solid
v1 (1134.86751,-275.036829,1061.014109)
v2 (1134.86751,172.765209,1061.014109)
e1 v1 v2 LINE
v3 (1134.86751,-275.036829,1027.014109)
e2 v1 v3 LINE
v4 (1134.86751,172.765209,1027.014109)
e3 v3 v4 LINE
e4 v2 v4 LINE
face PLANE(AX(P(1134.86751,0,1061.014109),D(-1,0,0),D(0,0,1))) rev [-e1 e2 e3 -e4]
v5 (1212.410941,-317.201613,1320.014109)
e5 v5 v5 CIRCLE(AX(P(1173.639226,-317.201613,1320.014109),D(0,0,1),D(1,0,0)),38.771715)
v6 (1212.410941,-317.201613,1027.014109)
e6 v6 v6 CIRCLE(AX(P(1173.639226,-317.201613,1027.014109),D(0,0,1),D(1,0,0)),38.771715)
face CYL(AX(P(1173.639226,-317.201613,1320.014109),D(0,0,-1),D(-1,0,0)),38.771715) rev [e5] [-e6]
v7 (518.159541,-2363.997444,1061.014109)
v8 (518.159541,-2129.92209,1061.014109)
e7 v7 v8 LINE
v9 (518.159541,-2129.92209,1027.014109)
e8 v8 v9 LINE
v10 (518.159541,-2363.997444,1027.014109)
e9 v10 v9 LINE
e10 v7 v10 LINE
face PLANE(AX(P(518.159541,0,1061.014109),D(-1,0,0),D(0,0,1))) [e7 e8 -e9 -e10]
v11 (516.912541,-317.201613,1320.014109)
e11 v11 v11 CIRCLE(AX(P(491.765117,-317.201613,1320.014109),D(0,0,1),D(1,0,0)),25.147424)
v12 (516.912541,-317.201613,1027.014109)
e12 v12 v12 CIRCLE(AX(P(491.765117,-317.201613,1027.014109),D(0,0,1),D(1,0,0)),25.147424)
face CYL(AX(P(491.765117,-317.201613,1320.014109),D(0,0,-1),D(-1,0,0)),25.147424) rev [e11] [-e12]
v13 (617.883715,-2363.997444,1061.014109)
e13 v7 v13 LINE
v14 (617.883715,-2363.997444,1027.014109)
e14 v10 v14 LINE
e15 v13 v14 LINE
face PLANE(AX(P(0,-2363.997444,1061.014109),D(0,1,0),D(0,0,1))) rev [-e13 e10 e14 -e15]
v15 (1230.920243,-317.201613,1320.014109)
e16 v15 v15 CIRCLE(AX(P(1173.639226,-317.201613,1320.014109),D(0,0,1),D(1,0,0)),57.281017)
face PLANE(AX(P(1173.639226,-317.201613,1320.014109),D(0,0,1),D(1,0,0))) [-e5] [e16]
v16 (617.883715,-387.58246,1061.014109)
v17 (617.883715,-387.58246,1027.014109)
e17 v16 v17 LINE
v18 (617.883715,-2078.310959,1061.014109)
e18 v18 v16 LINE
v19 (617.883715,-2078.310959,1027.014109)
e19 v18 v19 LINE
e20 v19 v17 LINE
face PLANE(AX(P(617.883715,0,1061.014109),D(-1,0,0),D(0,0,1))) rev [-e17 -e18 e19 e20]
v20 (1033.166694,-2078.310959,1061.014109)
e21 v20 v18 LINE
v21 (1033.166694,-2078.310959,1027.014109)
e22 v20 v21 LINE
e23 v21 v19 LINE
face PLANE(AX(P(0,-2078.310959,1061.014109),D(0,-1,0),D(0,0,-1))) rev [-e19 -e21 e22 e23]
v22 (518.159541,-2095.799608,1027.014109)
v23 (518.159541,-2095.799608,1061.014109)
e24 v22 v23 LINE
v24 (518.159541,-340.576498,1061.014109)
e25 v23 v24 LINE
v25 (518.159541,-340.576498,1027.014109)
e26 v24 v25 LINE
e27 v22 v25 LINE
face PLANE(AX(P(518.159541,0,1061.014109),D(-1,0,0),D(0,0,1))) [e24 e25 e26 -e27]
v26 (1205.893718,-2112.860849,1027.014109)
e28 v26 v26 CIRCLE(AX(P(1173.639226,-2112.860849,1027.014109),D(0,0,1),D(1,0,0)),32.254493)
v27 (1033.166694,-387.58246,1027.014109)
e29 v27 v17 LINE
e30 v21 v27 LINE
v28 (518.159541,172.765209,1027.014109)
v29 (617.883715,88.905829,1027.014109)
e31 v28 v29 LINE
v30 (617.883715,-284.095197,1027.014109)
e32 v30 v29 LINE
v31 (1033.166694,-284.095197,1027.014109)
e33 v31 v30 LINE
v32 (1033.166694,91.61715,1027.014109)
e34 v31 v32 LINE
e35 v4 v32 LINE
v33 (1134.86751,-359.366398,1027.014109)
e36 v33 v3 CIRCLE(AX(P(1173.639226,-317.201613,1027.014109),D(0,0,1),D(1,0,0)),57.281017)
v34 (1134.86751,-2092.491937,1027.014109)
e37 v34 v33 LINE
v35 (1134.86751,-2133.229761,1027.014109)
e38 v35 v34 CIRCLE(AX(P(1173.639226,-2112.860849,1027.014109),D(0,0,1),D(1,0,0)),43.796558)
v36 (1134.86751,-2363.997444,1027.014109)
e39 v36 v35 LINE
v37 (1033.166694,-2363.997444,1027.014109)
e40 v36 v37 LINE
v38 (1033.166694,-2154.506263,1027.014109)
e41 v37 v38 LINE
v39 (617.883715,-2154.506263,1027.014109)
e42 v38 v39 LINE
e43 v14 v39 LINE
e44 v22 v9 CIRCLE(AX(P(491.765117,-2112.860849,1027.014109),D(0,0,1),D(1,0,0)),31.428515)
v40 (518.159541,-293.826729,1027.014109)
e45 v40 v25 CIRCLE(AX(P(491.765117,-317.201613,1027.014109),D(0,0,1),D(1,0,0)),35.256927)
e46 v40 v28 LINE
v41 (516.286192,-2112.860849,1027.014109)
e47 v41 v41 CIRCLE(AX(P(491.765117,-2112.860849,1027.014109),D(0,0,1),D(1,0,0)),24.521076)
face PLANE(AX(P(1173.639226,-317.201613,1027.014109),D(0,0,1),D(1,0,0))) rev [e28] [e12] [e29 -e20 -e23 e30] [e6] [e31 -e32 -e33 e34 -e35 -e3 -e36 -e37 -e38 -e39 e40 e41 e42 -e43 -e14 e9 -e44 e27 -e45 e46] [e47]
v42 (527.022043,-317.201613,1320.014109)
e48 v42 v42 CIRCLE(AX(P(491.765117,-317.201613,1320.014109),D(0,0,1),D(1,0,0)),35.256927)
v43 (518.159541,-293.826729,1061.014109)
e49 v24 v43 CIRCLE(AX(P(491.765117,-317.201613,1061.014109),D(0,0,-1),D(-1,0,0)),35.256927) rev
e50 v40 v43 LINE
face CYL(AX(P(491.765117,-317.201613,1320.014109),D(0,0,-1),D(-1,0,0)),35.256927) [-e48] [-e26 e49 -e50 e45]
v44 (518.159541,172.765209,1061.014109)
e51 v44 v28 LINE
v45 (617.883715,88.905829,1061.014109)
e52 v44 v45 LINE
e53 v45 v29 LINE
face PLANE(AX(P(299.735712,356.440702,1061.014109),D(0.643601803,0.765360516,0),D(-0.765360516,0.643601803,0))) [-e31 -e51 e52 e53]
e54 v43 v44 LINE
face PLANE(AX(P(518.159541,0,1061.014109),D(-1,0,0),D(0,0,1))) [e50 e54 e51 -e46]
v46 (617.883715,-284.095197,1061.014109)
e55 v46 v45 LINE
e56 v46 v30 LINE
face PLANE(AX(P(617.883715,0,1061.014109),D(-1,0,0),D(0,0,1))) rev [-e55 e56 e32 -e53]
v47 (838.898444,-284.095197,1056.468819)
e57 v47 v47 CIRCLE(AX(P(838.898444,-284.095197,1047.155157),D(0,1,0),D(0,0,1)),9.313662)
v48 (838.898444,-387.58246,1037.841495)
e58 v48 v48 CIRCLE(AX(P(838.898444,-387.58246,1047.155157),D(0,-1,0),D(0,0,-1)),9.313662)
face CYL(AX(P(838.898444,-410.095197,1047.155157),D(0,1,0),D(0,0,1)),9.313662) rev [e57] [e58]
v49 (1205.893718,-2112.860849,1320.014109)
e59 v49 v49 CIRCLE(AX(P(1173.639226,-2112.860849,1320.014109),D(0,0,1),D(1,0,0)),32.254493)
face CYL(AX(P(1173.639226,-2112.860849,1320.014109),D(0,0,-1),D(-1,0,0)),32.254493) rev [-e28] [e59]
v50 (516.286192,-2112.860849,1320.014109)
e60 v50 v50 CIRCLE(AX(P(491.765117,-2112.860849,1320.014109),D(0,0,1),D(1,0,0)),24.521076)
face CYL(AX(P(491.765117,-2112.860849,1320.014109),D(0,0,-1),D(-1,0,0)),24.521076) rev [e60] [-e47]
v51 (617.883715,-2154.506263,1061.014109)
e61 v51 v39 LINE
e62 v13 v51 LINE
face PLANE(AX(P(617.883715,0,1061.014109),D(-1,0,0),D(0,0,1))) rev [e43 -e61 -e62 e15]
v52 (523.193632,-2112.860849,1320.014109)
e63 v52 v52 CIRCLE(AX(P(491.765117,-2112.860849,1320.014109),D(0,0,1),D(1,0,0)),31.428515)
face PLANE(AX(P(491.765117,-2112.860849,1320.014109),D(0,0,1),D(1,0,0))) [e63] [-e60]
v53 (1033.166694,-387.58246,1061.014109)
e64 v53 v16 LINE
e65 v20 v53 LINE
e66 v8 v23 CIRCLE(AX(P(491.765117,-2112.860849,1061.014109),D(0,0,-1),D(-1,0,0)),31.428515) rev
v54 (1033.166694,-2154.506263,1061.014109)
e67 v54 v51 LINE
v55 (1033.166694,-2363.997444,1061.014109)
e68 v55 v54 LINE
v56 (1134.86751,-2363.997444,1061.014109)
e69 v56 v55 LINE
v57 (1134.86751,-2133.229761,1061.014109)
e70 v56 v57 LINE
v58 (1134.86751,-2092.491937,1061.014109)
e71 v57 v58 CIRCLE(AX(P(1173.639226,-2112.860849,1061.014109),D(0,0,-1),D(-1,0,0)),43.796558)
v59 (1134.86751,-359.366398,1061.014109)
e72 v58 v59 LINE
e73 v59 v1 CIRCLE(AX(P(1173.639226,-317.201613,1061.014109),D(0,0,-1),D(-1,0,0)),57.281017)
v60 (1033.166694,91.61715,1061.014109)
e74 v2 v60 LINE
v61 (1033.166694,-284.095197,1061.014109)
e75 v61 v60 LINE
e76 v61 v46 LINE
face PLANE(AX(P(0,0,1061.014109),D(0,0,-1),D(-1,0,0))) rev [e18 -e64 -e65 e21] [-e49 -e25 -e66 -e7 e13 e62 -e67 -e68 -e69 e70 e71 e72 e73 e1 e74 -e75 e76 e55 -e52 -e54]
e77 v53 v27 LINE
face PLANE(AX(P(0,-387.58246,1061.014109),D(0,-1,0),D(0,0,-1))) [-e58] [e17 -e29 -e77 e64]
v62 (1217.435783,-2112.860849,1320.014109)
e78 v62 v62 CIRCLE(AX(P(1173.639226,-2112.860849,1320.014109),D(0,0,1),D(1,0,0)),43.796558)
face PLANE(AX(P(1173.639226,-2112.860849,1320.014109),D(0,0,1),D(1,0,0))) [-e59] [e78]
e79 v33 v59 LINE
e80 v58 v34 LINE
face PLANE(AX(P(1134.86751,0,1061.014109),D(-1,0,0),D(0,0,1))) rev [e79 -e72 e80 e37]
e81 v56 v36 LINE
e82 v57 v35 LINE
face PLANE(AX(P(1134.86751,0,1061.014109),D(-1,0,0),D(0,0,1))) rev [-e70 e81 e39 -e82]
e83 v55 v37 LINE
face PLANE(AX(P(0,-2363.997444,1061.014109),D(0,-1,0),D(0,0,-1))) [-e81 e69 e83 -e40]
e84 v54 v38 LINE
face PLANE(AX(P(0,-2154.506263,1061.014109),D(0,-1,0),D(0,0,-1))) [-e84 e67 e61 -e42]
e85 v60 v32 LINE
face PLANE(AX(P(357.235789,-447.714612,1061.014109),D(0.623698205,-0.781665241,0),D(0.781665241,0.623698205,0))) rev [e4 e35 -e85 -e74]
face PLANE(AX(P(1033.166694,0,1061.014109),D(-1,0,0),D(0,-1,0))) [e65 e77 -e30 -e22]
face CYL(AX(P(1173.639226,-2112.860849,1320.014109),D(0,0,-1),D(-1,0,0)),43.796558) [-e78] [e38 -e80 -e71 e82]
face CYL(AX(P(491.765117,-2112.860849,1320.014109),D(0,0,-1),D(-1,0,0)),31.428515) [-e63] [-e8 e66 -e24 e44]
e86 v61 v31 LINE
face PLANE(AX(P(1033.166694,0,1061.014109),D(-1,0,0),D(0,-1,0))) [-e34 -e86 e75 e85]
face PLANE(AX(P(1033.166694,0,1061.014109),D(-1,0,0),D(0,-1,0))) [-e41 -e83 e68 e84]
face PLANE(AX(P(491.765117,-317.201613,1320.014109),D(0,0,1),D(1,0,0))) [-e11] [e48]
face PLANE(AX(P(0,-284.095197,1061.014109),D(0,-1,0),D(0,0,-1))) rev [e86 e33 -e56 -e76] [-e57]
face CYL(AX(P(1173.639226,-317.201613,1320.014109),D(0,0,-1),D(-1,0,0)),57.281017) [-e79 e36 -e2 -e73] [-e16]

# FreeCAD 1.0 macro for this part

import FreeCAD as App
import Part
import Sketcher
from FreeCAD import Vector
Q = App.Units.Quantity


def add_polygon(sketch, points):
    """Adds a closed chain of lines whose ends are joined by coincident constraints."""
    first, n = sketch.GeometryCount, len(points)
    for a, b in zip(points, points[1:] + points[:1]):
        sketch.addGeometry(Part.LineSegment(App.Vector(*a, 0), App.Vector(*b, 0)), False)
    for i in range(n):
        sketch.addConstraint(Sketcher.Constraint("Coincident", first + i, 2, first + (i + 1) % n, 1))

doc = App.newDocument("Part")
body = doc.addObject("PartDesign::Body", "Body")

# Sketch on XY plane
sketch1 = body.newObject("Sketcher::SketchObject", "Sketch")
sketch1.AttachmentSupport = (doc.getObject("XY_Plane"), [""])
sketch1.MapMode = "FlatFace"
sketch1.AttachmentOffset = App.Placement(Vector(0, 0, 1027.014109), App.Rotation())
sketch1.addGeometry(Part.Circle(Vector(1173.639226, -317.201613, 0), Vector(0, 0, 1), 57.281017), False)
sketch1.addGeometry(Part.Circle(Vector(1173.639226, -317.201613, 0), Vector(0, 0, 1), 38.771715), False)
sketch1.addConstraint(Sketcher.Constraint("Coincident", 1, 3, 0, 3))
sketch1.addConstraint(Sketcher.Constraint("Diameter", 1, Q("77.543431 mm")))
sketch1.addConstraint(Sketcher.Constraint("Diameter", 0, Q("114.562035 mm")))
sketch1.addConstraint(Sketcher.Constraint("DistanceX", -1, 1, 0, 3, Q("1173.639226 mm")))
sketch1.addConstraint(Sketcher.Constraint("DistanceY", 0, 3, -1, 1, Q("317.201613 mm")))
pad1 = body.newObject("PartDesign::Pad", "Pad")
pad1.Profile = sketch1
pad1.Length = 293
body2 = doc.addObject("PartDesign::Body", "Body001")

# Sketch on XY plane
sketch2 = body2.newObject("Sketcher::SketchObject", "Sketch001")
sketch2.AttachmentSupport = (doc.getObject("XY_Plane001"), [""])
sketch2.MapMode = "FlatFace"
sketch2.AttachmentOffset = App.Placement(Vector(0, 0, 1027.014109), App.Rotation())
sketch2.addGeometry(Part.Circle(Vector(491.765117, -317.201613, 0), Vector(0, 0, 1), 35.256927), False)
sketch2.addGeometry(Part.Circle(Vector(491.765117, -317.201613, 0), Vector(0, 0, 1), 25.147424), False)
sketch2.addConstraint(Sketcher.Constraint("Coincident", 1, 3, 0, 3))
sketch2.addConstraint(Sketcher.Constraint("Diameter", 0, Q("70.513853 mm")))
sketch2.addConstraint(Sketcher.Constraint("Diameter", 1, Q("50.294847 mm")))
sketch2.addConstraint(Sketcher.Constraint("DistanceX", -1, 1, 0, 3, Q("491.765117 mm")))
sketch2.addConstraint(Sketcher.Constraint("DistanceY", 0, 3, -1, 1, Q("317.201613 mm")))
pad2 = body2.newObject("PartDesign::Pad", "Pad001")
pad2.Profile = sketch2
pad2.Length = 293
body3 = doc.addObject("PartDesign::Body", "Body002")

# Sketch on XY plane
sketch3 = body3.newObject("Sketcher::SketchObject", "Sketch002")
sketch3.AttachmentSupport = (doc.getObject("XY_Plane002"), [""])
sketch3.MapMode = "FlatFace"
sketch3.AttachmentOffset = App.Placement(Vector(0, 0, 1027.014109), App.Rotation())
sketch3.addGeometry(Part.Circle(Vector(491.765117, -2112.860849, 0), Vector(0, 0, 1), 31.428515), False)
sketch3.addGeometry(Part.Circle(Vector(491.765117, -2112.860849, 0), Vector(0, 0, 1), 24.521076), False)
sketch3.addConstraint(Sketcher.Constraint("Coincident", 1, 3, 0, 3))
sketch3.addConstraint(Sketcher.Constraint("Diameter", 0, Q("62.857031 mm")))
sketch3.addConstraint(Sketcher.Constraint("Diameter", 1, Q("49.042151 mm")))
sketch3.addConstraint(Sketcher.Constraint("DistanceY", 0, 3, -1, 1, Q("2112.860849 mm")))
sketch3.addConstraint(Sketcher.Constraint("DistanceX", -1, 1, 0, 3, Q("491.765117 mm")))
pad3 = body3.newObject("PartDesign::Pad", "Pad002")
pad3.Profile = sketch3
pad3.Length = 293
body4 = doc.addObject("PartDesign::Body", "Body003")

# Sketch on XY plane
sketch4 = body4.newObject("Sketcher::SketchObject", "Sketch003")
sketch4.AttachmentSupport = (doc.getObject("XY_Plane003"), [""])
sketch4.MapMode = "FlatFace"
sketch4.AttachmentOffset = App.Placement(Vector(0, 0, 1027.014109), App.Rotation())
sketch4.addGeometry(Part.Circle(Vector(1173.639226, -2112.860849, 0), Vector(0, 0, 1), 43.796558), False)
sketch4.addGeometry(Part.Circle(Vector(1173.639226, -2112.860849, 0), Vector(0, 0, 1), 32.254493), False)
sketch4.addConstraint(Sketcher.Constraint("Coincident", 1, 3, 0, 3))
sketch4.addConstraint(Sketcher.Constraint("Diameter", 0, Q("87.593116 mm")))
sketch4.addConstraint(Sketcher.Constraint("Diameter", 1, Q("64.508986 mm")))
sketch4.addConstraint(Sketcher.Constraint("DistanceY", 0, 3, -1, 1, Q("2112.860849 mm")))
sketch4.addConstraint(Sketcher.Constraint("DistanceX", -1, 1, 0, 3, Q("1173.639226 mm")))
pad4 = body4.newObject("PartDesign::Pad", "Pad003")
pad4.Profile = sketch4
pad4.Length = 293
body.AllowCompound = True
doc.recompute()

boolean = body.newObject("PartDesign::Boolean", "Boolean")
boolean.Type = "Fuse"
boolean.addObjects([body2])
doc.recompute()

boolean2 = body.newObject("PartDesign::Boolean", "Boolean001")
boolean2.Type = "Fuse"
boolean2.addObjects([body3])
doc.recompute()

boolean3 = body.newObject("PartDesign::Boolean", "Boolean002")
boolean3.Type = "Fuse"
boolean3.addObjects([body4])

# Sketch on XY plane
sketch5 = body.newObject("Sketcher::SketchObject", "Sketch004")
sketch5.AttachmentSupport = (doc.getObject("XY_Plane"), [""])
sketch5.MapMode = "FlatFace"
sketch5.AttachmentOffset = App.Placement(Vector(0, 0, 1027.014109), App.Rotation())
add_polygon(sketch5, [(1134.86751, 172.765209), (1134.86751, -2363.997444), (1033.166694, -2363.997444), (1033.166694, -2154.506263), (617.883715, -2154.506263), (617.883715, -2363.997444), (518.159541, -2363.997444), (518.159541, 172.765209), (617.883715, 88.905829), (617.883715, -284.095197), (1033.166694, -284.095197), (1033.166694, 91.61715)])  # lines 0-11
add_polygon(sketch5, [(617.883715, -387.58246), (617.883715, -2078.310959), (1033.166694, -2078.310959), (1033.166694, -387.58246)])  # lines 12-15
sketch5.addConstraint(Sketcher.Constraint("Vertical", 0))
sketch5.addConstraint(Sketcher.Constraint("Horizontal", 1))
sketch5.addConstraint(Sketcher.Constraint("Vertical", 2))
sketch5.addConstraint(Sketcher.Constraint("Horizontal", 3))
sketch5.addConstraint(Sketcher.Constraint("Vertical", 4))
sketch5.addConstraint(Sketcher.Constraint("Horizontal", 5))
sketch5.addConstraint(Sketcher.Constraint("Vertical", 6))
sketch5.addConstraint(Sketcher.Constraint("Vertical", 8))
sketch5.addConstraint(Sketcher.Constraint("Horizontal", 9))
sketch5.addConstraint(Sketcher.Constraint("Vertical", 10))
sketch5.addConstraint(Sketcher.Constraint("Vertical", 12))
sketch5.addConstraint(Sketcher.Constraint("Horizontal", 13))
sketch5.addConstraint(Sketcher.Constraint("Vertical", 14))
sketch5.addConstraint(Sketcher.Constraint("Horizontal", 15))
sketch5.addConstraint(Sketcher.Constraint("Horizontal", 1, 2, 4, 2))
sketch5.addConstraint(Sketcher.Constraint("Horizontal", 6, 2, 11, 2))
sketch5.addConstraint(Sketcher.Constraint("Vertical", 4, 2, 7, 2))
sketch5.addConstraint(Sketcher.Constraint("Vertical", 2, 2, 9, 2))
sketch5.addConstraint(Sketcher.Constraint("Vertical", 8, 2, 12, 2))
sketch5.addConstraint(Sketcher.Constraint("Vertical", 10, 2, 13, 2))
sketch5.addConstraint(Sketcher.Constraint("DistanceY", 12, 2, 12, 1, Q("1690.728499 mm")))
sketch5.addConstraint(Sketcher.Constraint("DistanceX", 3, 2, 3, 1, Q("415.282979 mm")))
sketch5.addConstraint(Sketcher.Constraint("DistanceY", 2, 1, 2, 2, Q("209.491181 mm")))
sketch5.addConstraint(Sketcher.Constraint("Distance", 11, Q("130.107891 mm")))
sketch5.addConstraint(Sketcher.Constraint("DistanceX", 1, 2, 1, 1, Q("101.700816 mm")))
sketch5.addConstraint(Sketcher.Constraint("DistanceX", 5, 2, 5, 1, Q("99.724174 mm")))
sketch5.addConstraint(Sketcher.Constraint("DistanceY", 0, 2, 0, 1, Q("2536.762653 mm")))
sketch5.addConstraint(Sketcher.Constraint("DistanceY", 8, 2, 8, 1, Q("373.001026 mm")))
sketch5.addConstraint(Sketcher.Constraint("DistanceY", 10, 1, 10, 2, Q("375.712347 mm")))
sketch5.addConstraint(Sketcher.Constraint("DistanceX", -1, 1, 0, 2, Q("1134.86751 mm")))
sketch5.addConstraint(Sketcher.Constraint("DistanceY", -1, 1, 6, 2, Q("172.765209 mm")))
sketch5.addConstraint(Sketcher.Constraint("DistanceY", 12, 2, -1, 1, Q("2078.310959 mm")))
pad5 = body.newObject("PartDesign::Pad", "Pad004")
pad5.Profile = sketch5
pad5.Length = 34

# Sketch on XZ plane
sketch6 = body.newObject("Sketcher::SketchObject", "Sketch005")
sketch6.AttachmentSupport = (doc.getObject("XZ_Plane"), [""])
sketch6.MapMode = "FlatFace"
sketch6.AttachmentOffset = App.Placement(Vector(0, 0, 284.095197), App.Rotation())
sketch6.addGeometry(Part.Circle(Vector(838.898444, 1047.155157, 0), Vector(0, 0, 1), 9.313662), False)
sketch6.addConstraint(Sketcher.Constraint("Diameter", 0, Q("18.627324 mm")))
sketch6.addConstraint(Sketcher.Constraint("DistanceX", -1, 1, 0, 3, Q("838.898444 mm")))
sketch6.addConstraint(Sketcher.Constraint("DistanceY", -1, 1, 0, 3, Q("1047.155157 mm")))
pocket1 = body.newObject("PartDesign::Pocket", "Pocket")
pocket1.Profile = sketch6
pocket1.Length = 126
pocket1.Reversed = True

doc.recompute()
